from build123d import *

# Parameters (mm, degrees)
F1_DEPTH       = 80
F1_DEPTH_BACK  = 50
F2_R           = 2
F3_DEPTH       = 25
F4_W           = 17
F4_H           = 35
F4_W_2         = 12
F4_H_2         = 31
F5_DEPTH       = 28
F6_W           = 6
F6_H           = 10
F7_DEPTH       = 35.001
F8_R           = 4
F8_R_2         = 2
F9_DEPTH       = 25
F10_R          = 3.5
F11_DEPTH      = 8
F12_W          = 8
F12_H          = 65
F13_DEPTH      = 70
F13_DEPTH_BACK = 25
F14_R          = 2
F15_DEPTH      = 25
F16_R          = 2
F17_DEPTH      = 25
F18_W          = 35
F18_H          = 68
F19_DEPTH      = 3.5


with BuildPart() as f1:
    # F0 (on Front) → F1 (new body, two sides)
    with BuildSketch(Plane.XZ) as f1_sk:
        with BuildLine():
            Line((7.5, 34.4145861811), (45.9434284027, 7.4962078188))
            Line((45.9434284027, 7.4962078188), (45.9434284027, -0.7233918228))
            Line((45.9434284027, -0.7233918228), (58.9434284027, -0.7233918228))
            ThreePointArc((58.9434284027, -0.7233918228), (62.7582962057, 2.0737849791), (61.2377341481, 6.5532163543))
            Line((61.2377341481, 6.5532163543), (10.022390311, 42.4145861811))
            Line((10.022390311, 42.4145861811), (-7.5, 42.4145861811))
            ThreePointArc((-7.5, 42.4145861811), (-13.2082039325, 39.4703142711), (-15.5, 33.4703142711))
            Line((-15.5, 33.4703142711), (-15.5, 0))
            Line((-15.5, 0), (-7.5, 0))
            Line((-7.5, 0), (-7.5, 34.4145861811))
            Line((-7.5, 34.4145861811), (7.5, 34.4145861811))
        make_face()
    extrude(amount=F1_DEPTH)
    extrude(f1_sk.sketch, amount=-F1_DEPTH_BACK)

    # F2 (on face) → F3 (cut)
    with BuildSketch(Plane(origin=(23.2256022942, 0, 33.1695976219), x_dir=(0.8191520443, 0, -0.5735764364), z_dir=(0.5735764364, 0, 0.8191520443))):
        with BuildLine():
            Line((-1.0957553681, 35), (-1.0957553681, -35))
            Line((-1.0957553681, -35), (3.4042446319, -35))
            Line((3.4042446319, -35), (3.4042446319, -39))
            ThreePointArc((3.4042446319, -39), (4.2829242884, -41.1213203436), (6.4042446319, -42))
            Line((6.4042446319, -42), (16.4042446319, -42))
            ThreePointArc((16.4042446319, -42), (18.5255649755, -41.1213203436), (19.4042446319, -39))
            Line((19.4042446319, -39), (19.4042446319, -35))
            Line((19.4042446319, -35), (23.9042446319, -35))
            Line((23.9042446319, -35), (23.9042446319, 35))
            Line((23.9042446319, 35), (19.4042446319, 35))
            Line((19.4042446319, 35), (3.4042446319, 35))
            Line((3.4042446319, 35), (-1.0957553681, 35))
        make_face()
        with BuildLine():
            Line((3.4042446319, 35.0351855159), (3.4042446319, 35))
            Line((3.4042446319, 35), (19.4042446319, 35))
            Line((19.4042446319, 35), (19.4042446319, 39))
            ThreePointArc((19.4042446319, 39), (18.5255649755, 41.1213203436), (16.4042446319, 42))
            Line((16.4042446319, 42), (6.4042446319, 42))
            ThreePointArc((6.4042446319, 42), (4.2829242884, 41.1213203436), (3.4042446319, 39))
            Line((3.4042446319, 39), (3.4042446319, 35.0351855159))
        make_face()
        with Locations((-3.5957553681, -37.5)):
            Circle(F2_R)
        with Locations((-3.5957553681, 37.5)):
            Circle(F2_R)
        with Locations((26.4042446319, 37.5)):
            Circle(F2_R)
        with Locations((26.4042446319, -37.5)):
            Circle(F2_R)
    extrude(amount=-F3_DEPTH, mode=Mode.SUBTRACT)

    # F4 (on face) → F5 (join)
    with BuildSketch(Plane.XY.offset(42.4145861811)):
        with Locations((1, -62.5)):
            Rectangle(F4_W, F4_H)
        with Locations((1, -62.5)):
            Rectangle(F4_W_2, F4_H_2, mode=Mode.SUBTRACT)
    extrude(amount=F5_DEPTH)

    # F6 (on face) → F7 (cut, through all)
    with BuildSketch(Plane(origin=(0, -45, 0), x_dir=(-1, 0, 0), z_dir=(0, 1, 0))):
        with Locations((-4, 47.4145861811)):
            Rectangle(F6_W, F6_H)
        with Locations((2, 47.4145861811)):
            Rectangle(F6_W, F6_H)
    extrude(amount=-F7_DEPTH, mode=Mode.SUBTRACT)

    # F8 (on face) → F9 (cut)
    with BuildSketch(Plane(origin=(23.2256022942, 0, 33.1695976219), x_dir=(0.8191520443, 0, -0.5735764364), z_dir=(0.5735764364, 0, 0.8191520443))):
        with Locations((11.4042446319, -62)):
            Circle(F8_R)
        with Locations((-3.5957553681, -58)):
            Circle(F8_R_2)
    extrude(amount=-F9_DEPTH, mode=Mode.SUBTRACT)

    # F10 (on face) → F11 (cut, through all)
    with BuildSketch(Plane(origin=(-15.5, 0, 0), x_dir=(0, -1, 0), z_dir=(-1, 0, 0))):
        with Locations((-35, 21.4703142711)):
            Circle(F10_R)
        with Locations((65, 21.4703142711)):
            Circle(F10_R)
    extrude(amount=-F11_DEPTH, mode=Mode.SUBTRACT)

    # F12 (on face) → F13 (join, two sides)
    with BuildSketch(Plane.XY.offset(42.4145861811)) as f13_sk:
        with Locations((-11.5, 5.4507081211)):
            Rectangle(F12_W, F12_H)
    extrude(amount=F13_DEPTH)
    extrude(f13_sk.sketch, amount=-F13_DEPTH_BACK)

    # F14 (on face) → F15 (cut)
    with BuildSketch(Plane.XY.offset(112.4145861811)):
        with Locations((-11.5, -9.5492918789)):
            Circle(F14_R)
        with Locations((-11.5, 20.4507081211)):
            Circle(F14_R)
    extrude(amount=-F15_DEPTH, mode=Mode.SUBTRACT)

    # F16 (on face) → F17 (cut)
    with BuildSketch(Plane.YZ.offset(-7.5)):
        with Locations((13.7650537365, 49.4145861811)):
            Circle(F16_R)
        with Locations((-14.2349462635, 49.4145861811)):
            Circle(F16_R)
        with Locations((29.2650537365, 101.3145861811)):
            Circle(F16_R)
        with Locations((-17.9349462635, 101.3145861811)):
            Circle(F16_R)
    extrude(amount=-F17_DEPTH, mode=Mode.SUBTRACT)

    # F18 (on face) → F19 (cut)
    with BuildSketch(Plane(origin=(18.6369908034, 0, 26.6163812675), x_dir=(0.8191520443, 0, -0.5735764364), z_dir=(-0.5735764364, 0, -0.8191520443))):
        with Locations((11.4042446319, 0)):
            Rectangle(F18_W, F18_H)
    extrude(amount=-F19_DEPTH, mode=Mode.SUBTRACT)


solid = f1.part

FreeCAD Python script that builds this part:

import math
import FreeCAD as App
import Part
import Sketcher
from FreeCAD import Vector
Q = App.Units.Quantity


def add_polygon(sketch, points):
    """Adds a closed chain of lines whose ends are joined by coincident constraints."""
    first, n = sketch.GeometryCount, len(points)
    for a, b in zip(points, points[1:] + points[:1]):
        sketch.addGeometry(Part.LineSegment(App.Vector(*a, 0), App.Vector(*b, 0)), False)
    for i in range(n):
        sketch.addConstraint(Sketcher.Constraint("Coincident", first + i, 2, first + (i + 1) % n, 1))

doc = App.newDocument("Part")
body = doc.addObject("PartDesign::Body", "Body")

# Sketch on XZ plane
sketch1 = body.newObject("Sketcher::SketchObject", "Sketch")
sketch1.AttachmentSupport = (doc.getObject("XZ_Plane"), [""])
sketch1.MapMode = "FlatFace"
sketch1.addGeometry([
    Part.LineSegment(Vector(7.5, 34.4, 0), Vector(45.9, 7.5, 0)),  # 0
    Part.LineSegment(Vector(45.9, 7.5, 0), Vector(45.9, -0.7, 0)),  # 1
    Part.LineSegment(Vector(45.9, -0.7, 0), Vector(58.9, -0.7, 0)),  # 2
    Part.ArcOfCircle(Part.Circle(Vector(58.9, 3.3, 0), Vector(0, 0, 1), 4), math.radians(-90), math.radians(55)),  # 3
    Part.LineSegment(Vector(61.2, 6.6, 0), Vector(10, 42.4, 0)),  # 4
    Part.LineSegment(Vector(10, 42.4, 0), Vector(-7.5, 42.4, 0)),  # 5
    Part.ArcOfCircle(Part.Circle(Vector(-6.5, 33.5, 0), Vector(0, 0, 1), 9), math.radians(96), math.radians(180)),  # 6
    Part.LineSegment(Vector(-15.5, 33.5, 0), Vector(-15.5, 0, 0)),  # 7
    Part.LineSegment(Vector(-15.5, 0, 0), Vector(-7.5, 0, 0)),  # 8
    Part.LineSegment(Vector(-7.5, 0, 0), Vector(-7.5, 34.4, 0)),  # 9
    Part.LineSegment(Vector(-7.5, 34.4, 0), Vector(7.5, 34.4, 0)),  # 10
], False)
sketch1.addConstraint([
    Sketcher.Constraint("Coincident", 0, 2, 1, 1),
    Sketcher.Constraint("Coincident", 1, 2, 2, 1),
    Sketcher.Constraint("Tangent", 2, 2, 3, 1),
    Sketcher.Constraint("Tangent", 3, 2, 4, 1),
    Sketcher.Constraint("Coincident", 4, 2, 5, 1),
    Sketcher.Constraint("Coincident", 5, 2, 6, 1),
    Sketcher.Constraint("Tangent", 6, 2, 7, 1),
    Sketcher.Constraint("Coincident", 7, 2, 8, 1),
    Sketcher.Constraint("Coincident", 8, 2, 9, 1),
    Sketcher.Constraint("Coincident", 9, 2, 10, 1),
    Sketcher.Constraint("Coincident", 10, 2, 0, 1),
    Sketcher.Constraint("Vertical", 1),
    Sketcher.Constraint("Horizontal", 2),
    Sketcher.Constraint("Horizontal", 5),
    Sketcher.Constraint("Vertical", 7),
    Sketcher.Constraint("Horizontal", 8),
    Sketcher.Constraint("Vertical", 9),
    Sketcher.Constraint("Horizontal", 10),
    Sketcher.Constraint("PointOnObject", 7, 2, -1),
    Sketcher.Constraint("Parallel", 0, 4),
    Sketcher.Constraint("Vertical", 5, 2, 8, 2),
    Sketcher.Constraint("Radius", 3, 4.0),
    Sketcher.Constraint("Radius", 6, 9.0),
    Sketcher.Constraint("DistanceX", 2, 1, 2, 2, 13.0),
    Sketcher.Constraint("DistanceX", 8, 1, 8, 2, 8.0),
    Sketcher.Constraint("DistanceX", 10, 1, 10, 2, 15.0),
    Sketcher.Constraint("Angle", 0, Q("-35 deg")),
    Sketcher.Constraint("DistanceY", 9, 2, 5, 2, 8.0),
    Sketcher.Constraint("DistanceX", 6, 3, -1, 1, 6.5),
    Sketcher.Constraint("DistanceY", 1, 2, 1, 1, 8.2196),
    Sketcher.Constraint("Distance", 0, 46.93076),
    Sketcher.Constraint("DistanceY", 7, 2, 7, 1, 33.470314),
])
pad1 = body.newObject("PartDesign::Pad", "Pad")
pad1.Profile = sketch1
pad1.Type = "TwoLengths"
pad1.Length = 80
pad1.Length2 = 50

# Sketch on an angled plane
sketch2 = body.newObject("Sketcher::SketchObject", "Sketch001")
sketch2.Placement = App.Placement(Vector(23.225602, 0, 33.169598), App.Rotation(Vector(0.819152044, 0, -0.573576436), Vector(0, 0.999999999, 0), Vector(0.573576436, 0, 0.819152044), "ZXY"))
sketch2.addGeometry([
    Part.LineSegment(Vector(-1.1, 35, 0), Vector(-1.1, -35, 0)),  # 0
    Part.LineSegment(Vector(-1.1, -35, 0), Vector(3.4, -35, 0)),  # 1
    Part.LineSegment(Vector(3.4, -35, 0), Vector(3.4, -39, 0)),  # 2
    Part.ArcOfCircle(Part.Circle(Vector(6.4, -39, 0), Vector(0, 0, 1), 3), math.radians(180), math.radians(270)),  # 3
    Part.LineSegment(Vector(6.4, -42, 0), Vector(16.4, -42, 0)),  # 4
    Part.ArcOfCircle(Part.Circle(Vector(16.4, -39, 0), Vector(0, 0, 1), 3), math.radians(-90), math.radians(0)),  # 5
    Part.LineSegment(Vector(19.4, -39, 0), Vector(19.4, -35, 0)),  # 6
    Part.LineSegment(Vector(19.4, -35, 0), Vector(23.9, -35, 0)),  # 7
    Part.LineSegment(Vector(23.9, -35, 0), Vector(23.9, 35, 0)),  # 8
    Part.LineSegment(Vector(23.9, 35, 0), Vector(19.4, 35, 0)),  # 9
    Part.LineSegment(Vector(19.4, 35, 0), Vector(19.4, 39, 0)),  # 10
    Part.ArcOfCircle(Part.Circle(Vector(16.4, 39, 0), Vector(0, 0, 1), 3), math.radians(0), math.radians(90)),  # 11
    Part.LineSegment(Vector(16.4, 42, 0), Vector(6.4, 42, 0)),  # 12
    Part.ArcOfCircle(Part.Circle(Vector(6.4, 39, 0), Vector(0, 0, 1), 3), math.radians(90), math.radians(180)),  # 13
    Part.LineSegment(Vector(3.4, 39, 0), Vector(3.4, 35, 0)),  # 14
    Part.LineSegment(Vector(3.4, 35, 0), Vector(-1.1, 35, 0)),  # 15
    Part.Circle(Vector(-3.6, -37.5, 0), Vector(0, 0, 1), 2),  # 16
    Part.Circle(Vector(-3.6, 37.5, 0), Vector(0, 0, 1), 2),  # 17
    Part.Circle(Vector(26.4, 37.5, 0), Vector(0, 0, 1), 2),  # 18
    Part.Circle(Vector(26.4, -37.5, 0), Vector(0, 0, 1), 2),  # 19
], False)
sketch2.addConstraint([
    Sketcher.Constraint("Coincident", 0, 2, 1, 1),
    Sketcher.Constraint("Coincident", 1, 2, 2, 1),
    Sketcher.Constraint("Tangent", 2, 2, 3, 1),
    Sketcher.Constraint("Tangent", 3, 2, 4, 1),
    Sketcher.Constraint("Tangent", 4, 2, 5, 1),
    Sketcher.Constraint("Tangent", 5, 2, 6, 1),
    Sketcher.Constraint("Coincident", 6, 2, 7, 1),
    Sketcher.Constraint("Coincident", 7, 2, 8, 1),
    Sketcher.Constraint("Coincident", 8, 2, 9, 1),
    Sketcher.Constraint("Coincident", 9, 2, 10, 1),
    Sketcher.Constraint("Tangent", 10, 2, 11, 1),
    Sketcher.Constraint("Tangent", 11, 2, 12, 1),
    Sketcher.Constraint("Tangent", 12, 2, 13, 1),
    Sketcher.Constraint("Tangent", 13, 2, 14, 1),
    Sketcher.Constraint("Coincident", 14, 2, 15, 1),
    Sketcher.Constraint("Coincident", 15, 2, 0, 1),
    Sketcher.Constraint("Vertical", 0),
    Sketcher.Constraint("Horizontal", 1),
    Sketcher.Constraint("Vertical", 2),
    Sketcher.Constraint("Horizontal", 4),
    Sketcher.Constraint("Vertical", 6),
    Sketcher.Constraint("Horizontal", 7),
    Sketcher.Constraint("Vertical", 8),
    Sketcher.Constraint("Horizontal", 9),
    Sketcher.Constraint("Vertical", 10),
    Sketcher.Constraint("Horizontal", 12),
    Sketcher.Constraint("Vertical", 14),
    Sketcher.Constraint("Horizontal", 15),
    Sketcher.Constraint("Equal", 3, 5),
    Sketcher.Constraint("Equal", 5, 11),
    Sketcher.Constraint("Equal", 11, 13),
    Sketcher.Constraint("Equal", 16, 17),
    Sketcher.Constraint("Equal", 17, 18),
    Sketcher.Constraint("Equal", 18, 19),
    Sketcher.Constraint("Symmetric", 5, 3, 11, 3, -1),
    Sketcher.Constraint("Symmetric", 16, 3, 17, 3, -1),
    Sketcher.Constraint("Symmetric", 18, 3, 19, 3, -1),
    Sketcher.Constraint("Symmetric", 1, 2, 14, 2, -1),
    Sketcher.Constraint("Horizontal", 17, 3, 18, 3),
    Sketcher.Constraint("Horizontal", 1, 2, 6, 2),
    Sketcher.Constraint("Horizontal", 9, 2, 14, 2),
    Sketcher.Constraint("Equal", 1, 7),
    Sketcher.Constraint("Diameter", 16, 4.0),
    Sketcher.Constraint("Radius", 3, 3.0),
    Sketcher.Constraint("DistanceX", 4, 1, 4, 2, 10.0),
    Sketcher.Constraint("DistanceY", 0, 2, 0, 1, 70.0),
    Sketcher.Constraint("DistanceY", 2, 2, 2, 1, 4.0),
    Sketcher.Constraint("DistanceX", 1, 1, 1, 2, 4.5),
    Sketcher.Constraint("DistanceX", 16, 3, 3, 3, 10.0),
    Sketcher.Constraint("DistanceY", 16, 3, 17, 3, 75.0),
    Sketcher.Constraint("DistanceX", 11, 3, 18, 3, 10.0),
    Sketcher.Constraint("DistanceX", -1, 1, 3, 3, 6.404245),
])
pocket1 = body.newObject("PartDesign::Pocket", "Pocket")
pocket1.Profile = sketch2
pocket1.Length = 25

# Sketch on XY plane
sketch3 = body.newObject("Sketcher::SketchObject", "Sketch002")
sketch3.AttachmentSupport = (doc.getObject("XY_Plane"), [""])
sketch3.MapMode = "FlatFace"
sketch3.AttachmentOffset = App.Placement(Vector(0, 0, 42.414586), App.Rotation())
add_polygon(sketch3, [(-8, -45), (-8, -80), (10, -80), (10, -45)])  # lines 0-3
add_polygon(sketch3, [(7, -78), (-5, -78), (-5, -47), (7, -47)])  # lines 4-7
sketch3.addConstraint([
    Sketcher.Constraint("Vertical", 0),
    Sketcher.Constraint("Horizontal", 1),
    Sketcher.Constraint("Vertical", 2),
    Sketcher.Constraint("Horizontal", 3),
    Sketcher.Constraint("Horizontal", 4),
    Sketcher.Constraint("Vertical", 5),
    Sketcher.Constraint("Horizontal", 6),
    Sketcher.Constraint("Vertical", 7),
    Sketcher.Constraint("DistanceX", 1, 1, 1, 2, 17.0),
    Sketcher.Constraint("DistanceX", 4, 2, 4, 1, 12.0),
    Sketcher.Constraint("DistanceY", 0, 2, 0, 1, 35.0),
    Sketcher.Constraint("DistanceY", 5, 1, 5, 2, 31.0),
    Sketcher.Constraint("DistanceY", 0, 2, -1, 1, 80.0),
    Sketcher.Constraint("DistanceX", 4, 2, -1, 1, 5.0),
    Sketcher.Constraint("DistanceY", 4, 2, -1, 1, 78.0),
    Sketcher.Constraint("DistanceX", 0, 2, -1, 1, 7.5),
])
pad2 = body.newObject("PartDesign::Pad", "Pad001")
pad2.Profile = sketch3
pad2.Length = 28

# Sketch on XZ plane
sketch4 = body.newObject("Sketcher::SketchObject", "Sketch003")
sketch4.AttachmentSupport = (doc.getObject("XZ_Plane"), [""])
sketch4.MapMode = "FlatFace"
sketch4.AttachmentOffset = App.Placement(Vector(0, 0, 45), App.Rotation())
add_polygon(sketch4, [(7, 52), (7, 42), (-5, 42), (-5, 52)])  # lines 0-3
sketch4.addConstraint([
    Sketcher.Constraint("Vertical", 0),
    Sketcher.Constraint("Horizontal", 1),
    Sketcher.Constraint("Vertical", 2),
    Sketcher.Constraint("Horizontal", 3),
    Sketcher.Constraint("DistanceX", 1, 2, 1, 1, 12.0),
    Sketcher.Constraint("DistanceY", 0, 2, 0, 1, 10.0),
    Sketcher.Constraint("DistanceX", -1, 1, 0, 2, 7.0),
    Sketcher.Constraint("DistanceY", -1, 1, 0, 2, 42.414586),
])
pocket2 = body.newObject("PartDesign::Pocket", "Pocket001")
pocket2.Profile = sketch4
pocket2.Type = "ThroughAll"
pocket2.Reversed = True

# Sketch on an angled plane
sketch5 = body.newObject("Sketcher::SketchObject", "Sketch004")
sketch5.Placement = App.Placement(Vector(23.225602, 0, 33.169598), App.Rotation(Vector(0.819152044, 0, -0.573576436), Vector(0, 0.999999999, 0), Vector(0.573576436, 0, 0.819152044), "ZXY"))
sketch5.addGeometry([
    Part.Circle(Vector(11.4, -62, 0), Vector(0, 0, 1), 4),
    Part.Circle(Vector(-3.6, -58, 0), Vector(0, 0, 1), 2),
], False)
sketch5.addConstraint([
    Sketcher.Constraint("Diameter", 0, 8.0),
    Sketcher.Constraint("Diameter", 1, 4.0),
    Sketcher.Constraint("DistanceY", 0, 3, -1, 1, 62.0),
    Sketcher.Constraint("DistanceY", 1, 3, -1, 1, 58.0),
    Sketcher.Constraint("DistanceX", 1, 3, 0, 3, 15.0),
    Sketcher.Constraint("DistanceX", -1, 1, 0, 3, 11.404245),
])
pocket3 = body.newObject("PartDesign::Pocket", "Pocket002")
pocket3.Profile = sketch5
pocket3.Length = 25

# Sketch on YZ plane
sketch6 = body.newObject("Sketcher::SketchObject", "Sketch005")
sketch6.AttachmentSupport = (doc.getObject("YZ_Plane"), [""])
sketch6.MapMode = "FlatFace"
sketch6.AttachmentOffset = App.Placement(Vector(0, 0, -15.5), App.Rotation())
sketch6.addGeometry([
    Part.Circle(Vector(35, 21.5, 0), Vector(0, 0, 1), 3.5),
    Part.Circle(Vector(-65, 21.5, 0), Vector(0, 0, 1), 3.5),
], False)
sketch6.addConstraint([
    Sketcher.Constraint("Equal", 0, 1),
    Sketcher.Constraint("Horizontal", 0, 3, 1, 3),
    Sketcher.Constraint("Diameter", 0, 7.0),
    Sketcher.Constraint("DistanceX", -1, 1, 0, 3, 35.0),
    Sketcher.Constraint("DistanceX", 1, 3, -1, 1, 65.0),
    Sketcher.Constraint("DistanceY", -1, 1, 0, 3, 21.470314),
])
pocket4 = body.newObject("PartDesign::Pocket", "Pocket003")
pocket4.Profile = sketch6
pocket4.Length = 8
pocket4.Reversed = True

# Sketch on XY plane
sketch7 = body.newObject("Sketcher::SketchObject", "Sketch006")
sketch7.AttachmentSupport = (doc.getObject("XY_Plane"), [""])
sketch7.MapMode = "FlatFace"
sketch7.AttachmentOffset = App.Placement(Vector(0, 0, 42.414586), App.Rotation())
add_polygon(sketch7, [(-16, 38), (-16, -27), (-8, -27), (-8, 38)])  # lines 0-3
sketch7.addConstraint([
    Sketcher.Constraint("Vertical", 0),
    Sketcher.Constraint("Horizontal", 1),
    Sketcher.Constraint("Vertical", 2),
    Sketcher.Constraint("Horizontal", 3),
    Sketcher.Constraint("DistanceX", 1, 1, 1, 2, 8.0),
    Sketcher.Constraint("DistanceY", 0, 2, 0, 1, 65.0),
    Sketcher.Constraint("DistanceX", 0, 2, -1, 1, 15.5),
    Sketcher.Constraint("DistanceY", 0, 2, -1, 1, 27.049292),
])
pad3 = body.newObject("PartDesign::Pad", "Pad002")
pad3.Profile = sketch7
pad3.Type = "TwoLengths"
pad3.Length = 70
pad3.Length2 = 25

# Sketch on XY plane
sketch8 = body.newObject("Sketcher::SketchObject", "Sketch007")
sketch8.AttachmentSupport = (doc.getObject("XY_Plane"), [""])
sketch8.MapMode = "FlatFace"
sketch8.AttachmentOffset = App.Placement(Vector(0, 0, 112.414586), App.Rotation())
sketch8.addGeometry([
    Part.Circle(Vector(-11.5, -9.5, 0), Vector(0, 0, 1), 2),
    Part.Circle(Vector(-11.5, 20.5, 0), Vector(0, 0, 1), 2),
], False)
sketch8.addConstraint([
    Sketcher.Constraint("Equal", 0, 1),
    Sketcher.Constraint("Vertical", 0, 3, 1, 3),
    Sketcher.Constraint("Diameter", 0, 4.0),
    Sketcher.Constraint("DistanceY", 0, 3, 1, 3, 30.0),
    Sketcher.Constraint("DistanceX", 0, 3, -1, 1, 11.5),
    Sketcher.Constraint("DistanceY", 0, 3, -1, 1, 9.549292),
])
pocket5 = body.newObject("PartDesign::Pocket", "Pocket004")
pocket5.Profile = sketch8
pocket5.Length = 25

# Sketch on YZ plane
sketch9 = body.newObject("Sketcher::SketchObject", "Sketch008")
sketch9.AttachmentSupport = (doc.getObject("YZ_Plane"), [""])
sketch9.MapMode = "FlatFace"
sketch9.AttachmentOffset = App.Placement(Vector(0, 0, -7.5), App.Rotation())
sketch9.addGeometry([
    Part.Circle(Vector(13.8, 49.4, 0), Vector(0, 0, 1), 2),
    Part.Circle(Vector(-14.2, 49.4, 0), Vector(0, 0, 1), 2),
    Part.Circle(Vector(29.3, 101.3, 0), Vector(0, 0, 1), 2),
    Part.Circle(Vector(-17.9, 101.3, 0), Vector(0, 0, 1), 2),
], False)
sketch9.addConstraint([
    Sketcher.Constraint("Equal", 0, 1),
    Sketcher.Constraint("Equal", 1, 2),
    Sketcher.Constraint("Equal", 2, 3),
    Sketcher.Constraint("Horizontal", 0, 3, 1, 3),
    Sketcher.Constraint("Horizontal", 2, 3, 3, 3),
    Sketcher.Constraint("Diameter", 0, 4.0),
    Sketcher.Constraint("DistanceX", 1, 3, 0, 3, 28.0),
    Sketcher.Constraint("DistanceX", 0, 3, 2, 3, 15.5),
    Sketcher.Constraint("DistanceY", 0, 3, 2, 3, 51.9),
    Sketcher.Constraint("DistanceX", 3, 3, 2, 3, 47.2),
    Sketcher.Constraint("DistanceX", -1, 1, 0, 3, 13.765054),
    Sketcher.Constraint("DistanceY", -1, 1, 0, 3, 49.414586),
])
pocket6 = body.newObject("PartDesign::Pocket", "Pocket005")
pocket6.Profile = sketch9
pocket6.Length = 25

# Sketch on an angled plane
sketch10 = body.newObject("Sketcher::SketchObject", "Sketch009")
sketch10.Placement = App.Placement(Vector(18.636991, 0, 26.616381), App.Rotation(Vector(0.819152044, 0, -0.573576436), Vector(0, -0.999999999, 0), Vector(-0.573576436, 0, -0.819152044), "ZXY"))
add_polygon(sketch10, [(-6, 34), (-6, -34), (29, -34), (29, 34)])  # lines 0-3
sketch10.addConstraint([
    Sketcher.Constraint("Vertical", 0),
    Sketcher.Constraint("Horizontal", 1),
    Sketcher.Constraint("Vertical", 2),
    Sketcher.Constraint("Horizontal", 3),
    Sketcher.Constraint("DistanceX", 1, 1, 1, 2, 35.0),
    Sketcher.Constraint("DistanceY", 0, 2, 0, 1, 68.0),
    Sketcher.Constraint("DistanceY", 0, 2, -1, 1, 34.0),
    Sketcher.Constraint("DistanceX", 0, 2, -1, 1, 6.095755),
])
pocket7 = body.newObject("PartDesign::Pocket", "Pocket006")
pocket7.Profile = sketch10
pocket7.Length = 3.5

doc.recompute()
